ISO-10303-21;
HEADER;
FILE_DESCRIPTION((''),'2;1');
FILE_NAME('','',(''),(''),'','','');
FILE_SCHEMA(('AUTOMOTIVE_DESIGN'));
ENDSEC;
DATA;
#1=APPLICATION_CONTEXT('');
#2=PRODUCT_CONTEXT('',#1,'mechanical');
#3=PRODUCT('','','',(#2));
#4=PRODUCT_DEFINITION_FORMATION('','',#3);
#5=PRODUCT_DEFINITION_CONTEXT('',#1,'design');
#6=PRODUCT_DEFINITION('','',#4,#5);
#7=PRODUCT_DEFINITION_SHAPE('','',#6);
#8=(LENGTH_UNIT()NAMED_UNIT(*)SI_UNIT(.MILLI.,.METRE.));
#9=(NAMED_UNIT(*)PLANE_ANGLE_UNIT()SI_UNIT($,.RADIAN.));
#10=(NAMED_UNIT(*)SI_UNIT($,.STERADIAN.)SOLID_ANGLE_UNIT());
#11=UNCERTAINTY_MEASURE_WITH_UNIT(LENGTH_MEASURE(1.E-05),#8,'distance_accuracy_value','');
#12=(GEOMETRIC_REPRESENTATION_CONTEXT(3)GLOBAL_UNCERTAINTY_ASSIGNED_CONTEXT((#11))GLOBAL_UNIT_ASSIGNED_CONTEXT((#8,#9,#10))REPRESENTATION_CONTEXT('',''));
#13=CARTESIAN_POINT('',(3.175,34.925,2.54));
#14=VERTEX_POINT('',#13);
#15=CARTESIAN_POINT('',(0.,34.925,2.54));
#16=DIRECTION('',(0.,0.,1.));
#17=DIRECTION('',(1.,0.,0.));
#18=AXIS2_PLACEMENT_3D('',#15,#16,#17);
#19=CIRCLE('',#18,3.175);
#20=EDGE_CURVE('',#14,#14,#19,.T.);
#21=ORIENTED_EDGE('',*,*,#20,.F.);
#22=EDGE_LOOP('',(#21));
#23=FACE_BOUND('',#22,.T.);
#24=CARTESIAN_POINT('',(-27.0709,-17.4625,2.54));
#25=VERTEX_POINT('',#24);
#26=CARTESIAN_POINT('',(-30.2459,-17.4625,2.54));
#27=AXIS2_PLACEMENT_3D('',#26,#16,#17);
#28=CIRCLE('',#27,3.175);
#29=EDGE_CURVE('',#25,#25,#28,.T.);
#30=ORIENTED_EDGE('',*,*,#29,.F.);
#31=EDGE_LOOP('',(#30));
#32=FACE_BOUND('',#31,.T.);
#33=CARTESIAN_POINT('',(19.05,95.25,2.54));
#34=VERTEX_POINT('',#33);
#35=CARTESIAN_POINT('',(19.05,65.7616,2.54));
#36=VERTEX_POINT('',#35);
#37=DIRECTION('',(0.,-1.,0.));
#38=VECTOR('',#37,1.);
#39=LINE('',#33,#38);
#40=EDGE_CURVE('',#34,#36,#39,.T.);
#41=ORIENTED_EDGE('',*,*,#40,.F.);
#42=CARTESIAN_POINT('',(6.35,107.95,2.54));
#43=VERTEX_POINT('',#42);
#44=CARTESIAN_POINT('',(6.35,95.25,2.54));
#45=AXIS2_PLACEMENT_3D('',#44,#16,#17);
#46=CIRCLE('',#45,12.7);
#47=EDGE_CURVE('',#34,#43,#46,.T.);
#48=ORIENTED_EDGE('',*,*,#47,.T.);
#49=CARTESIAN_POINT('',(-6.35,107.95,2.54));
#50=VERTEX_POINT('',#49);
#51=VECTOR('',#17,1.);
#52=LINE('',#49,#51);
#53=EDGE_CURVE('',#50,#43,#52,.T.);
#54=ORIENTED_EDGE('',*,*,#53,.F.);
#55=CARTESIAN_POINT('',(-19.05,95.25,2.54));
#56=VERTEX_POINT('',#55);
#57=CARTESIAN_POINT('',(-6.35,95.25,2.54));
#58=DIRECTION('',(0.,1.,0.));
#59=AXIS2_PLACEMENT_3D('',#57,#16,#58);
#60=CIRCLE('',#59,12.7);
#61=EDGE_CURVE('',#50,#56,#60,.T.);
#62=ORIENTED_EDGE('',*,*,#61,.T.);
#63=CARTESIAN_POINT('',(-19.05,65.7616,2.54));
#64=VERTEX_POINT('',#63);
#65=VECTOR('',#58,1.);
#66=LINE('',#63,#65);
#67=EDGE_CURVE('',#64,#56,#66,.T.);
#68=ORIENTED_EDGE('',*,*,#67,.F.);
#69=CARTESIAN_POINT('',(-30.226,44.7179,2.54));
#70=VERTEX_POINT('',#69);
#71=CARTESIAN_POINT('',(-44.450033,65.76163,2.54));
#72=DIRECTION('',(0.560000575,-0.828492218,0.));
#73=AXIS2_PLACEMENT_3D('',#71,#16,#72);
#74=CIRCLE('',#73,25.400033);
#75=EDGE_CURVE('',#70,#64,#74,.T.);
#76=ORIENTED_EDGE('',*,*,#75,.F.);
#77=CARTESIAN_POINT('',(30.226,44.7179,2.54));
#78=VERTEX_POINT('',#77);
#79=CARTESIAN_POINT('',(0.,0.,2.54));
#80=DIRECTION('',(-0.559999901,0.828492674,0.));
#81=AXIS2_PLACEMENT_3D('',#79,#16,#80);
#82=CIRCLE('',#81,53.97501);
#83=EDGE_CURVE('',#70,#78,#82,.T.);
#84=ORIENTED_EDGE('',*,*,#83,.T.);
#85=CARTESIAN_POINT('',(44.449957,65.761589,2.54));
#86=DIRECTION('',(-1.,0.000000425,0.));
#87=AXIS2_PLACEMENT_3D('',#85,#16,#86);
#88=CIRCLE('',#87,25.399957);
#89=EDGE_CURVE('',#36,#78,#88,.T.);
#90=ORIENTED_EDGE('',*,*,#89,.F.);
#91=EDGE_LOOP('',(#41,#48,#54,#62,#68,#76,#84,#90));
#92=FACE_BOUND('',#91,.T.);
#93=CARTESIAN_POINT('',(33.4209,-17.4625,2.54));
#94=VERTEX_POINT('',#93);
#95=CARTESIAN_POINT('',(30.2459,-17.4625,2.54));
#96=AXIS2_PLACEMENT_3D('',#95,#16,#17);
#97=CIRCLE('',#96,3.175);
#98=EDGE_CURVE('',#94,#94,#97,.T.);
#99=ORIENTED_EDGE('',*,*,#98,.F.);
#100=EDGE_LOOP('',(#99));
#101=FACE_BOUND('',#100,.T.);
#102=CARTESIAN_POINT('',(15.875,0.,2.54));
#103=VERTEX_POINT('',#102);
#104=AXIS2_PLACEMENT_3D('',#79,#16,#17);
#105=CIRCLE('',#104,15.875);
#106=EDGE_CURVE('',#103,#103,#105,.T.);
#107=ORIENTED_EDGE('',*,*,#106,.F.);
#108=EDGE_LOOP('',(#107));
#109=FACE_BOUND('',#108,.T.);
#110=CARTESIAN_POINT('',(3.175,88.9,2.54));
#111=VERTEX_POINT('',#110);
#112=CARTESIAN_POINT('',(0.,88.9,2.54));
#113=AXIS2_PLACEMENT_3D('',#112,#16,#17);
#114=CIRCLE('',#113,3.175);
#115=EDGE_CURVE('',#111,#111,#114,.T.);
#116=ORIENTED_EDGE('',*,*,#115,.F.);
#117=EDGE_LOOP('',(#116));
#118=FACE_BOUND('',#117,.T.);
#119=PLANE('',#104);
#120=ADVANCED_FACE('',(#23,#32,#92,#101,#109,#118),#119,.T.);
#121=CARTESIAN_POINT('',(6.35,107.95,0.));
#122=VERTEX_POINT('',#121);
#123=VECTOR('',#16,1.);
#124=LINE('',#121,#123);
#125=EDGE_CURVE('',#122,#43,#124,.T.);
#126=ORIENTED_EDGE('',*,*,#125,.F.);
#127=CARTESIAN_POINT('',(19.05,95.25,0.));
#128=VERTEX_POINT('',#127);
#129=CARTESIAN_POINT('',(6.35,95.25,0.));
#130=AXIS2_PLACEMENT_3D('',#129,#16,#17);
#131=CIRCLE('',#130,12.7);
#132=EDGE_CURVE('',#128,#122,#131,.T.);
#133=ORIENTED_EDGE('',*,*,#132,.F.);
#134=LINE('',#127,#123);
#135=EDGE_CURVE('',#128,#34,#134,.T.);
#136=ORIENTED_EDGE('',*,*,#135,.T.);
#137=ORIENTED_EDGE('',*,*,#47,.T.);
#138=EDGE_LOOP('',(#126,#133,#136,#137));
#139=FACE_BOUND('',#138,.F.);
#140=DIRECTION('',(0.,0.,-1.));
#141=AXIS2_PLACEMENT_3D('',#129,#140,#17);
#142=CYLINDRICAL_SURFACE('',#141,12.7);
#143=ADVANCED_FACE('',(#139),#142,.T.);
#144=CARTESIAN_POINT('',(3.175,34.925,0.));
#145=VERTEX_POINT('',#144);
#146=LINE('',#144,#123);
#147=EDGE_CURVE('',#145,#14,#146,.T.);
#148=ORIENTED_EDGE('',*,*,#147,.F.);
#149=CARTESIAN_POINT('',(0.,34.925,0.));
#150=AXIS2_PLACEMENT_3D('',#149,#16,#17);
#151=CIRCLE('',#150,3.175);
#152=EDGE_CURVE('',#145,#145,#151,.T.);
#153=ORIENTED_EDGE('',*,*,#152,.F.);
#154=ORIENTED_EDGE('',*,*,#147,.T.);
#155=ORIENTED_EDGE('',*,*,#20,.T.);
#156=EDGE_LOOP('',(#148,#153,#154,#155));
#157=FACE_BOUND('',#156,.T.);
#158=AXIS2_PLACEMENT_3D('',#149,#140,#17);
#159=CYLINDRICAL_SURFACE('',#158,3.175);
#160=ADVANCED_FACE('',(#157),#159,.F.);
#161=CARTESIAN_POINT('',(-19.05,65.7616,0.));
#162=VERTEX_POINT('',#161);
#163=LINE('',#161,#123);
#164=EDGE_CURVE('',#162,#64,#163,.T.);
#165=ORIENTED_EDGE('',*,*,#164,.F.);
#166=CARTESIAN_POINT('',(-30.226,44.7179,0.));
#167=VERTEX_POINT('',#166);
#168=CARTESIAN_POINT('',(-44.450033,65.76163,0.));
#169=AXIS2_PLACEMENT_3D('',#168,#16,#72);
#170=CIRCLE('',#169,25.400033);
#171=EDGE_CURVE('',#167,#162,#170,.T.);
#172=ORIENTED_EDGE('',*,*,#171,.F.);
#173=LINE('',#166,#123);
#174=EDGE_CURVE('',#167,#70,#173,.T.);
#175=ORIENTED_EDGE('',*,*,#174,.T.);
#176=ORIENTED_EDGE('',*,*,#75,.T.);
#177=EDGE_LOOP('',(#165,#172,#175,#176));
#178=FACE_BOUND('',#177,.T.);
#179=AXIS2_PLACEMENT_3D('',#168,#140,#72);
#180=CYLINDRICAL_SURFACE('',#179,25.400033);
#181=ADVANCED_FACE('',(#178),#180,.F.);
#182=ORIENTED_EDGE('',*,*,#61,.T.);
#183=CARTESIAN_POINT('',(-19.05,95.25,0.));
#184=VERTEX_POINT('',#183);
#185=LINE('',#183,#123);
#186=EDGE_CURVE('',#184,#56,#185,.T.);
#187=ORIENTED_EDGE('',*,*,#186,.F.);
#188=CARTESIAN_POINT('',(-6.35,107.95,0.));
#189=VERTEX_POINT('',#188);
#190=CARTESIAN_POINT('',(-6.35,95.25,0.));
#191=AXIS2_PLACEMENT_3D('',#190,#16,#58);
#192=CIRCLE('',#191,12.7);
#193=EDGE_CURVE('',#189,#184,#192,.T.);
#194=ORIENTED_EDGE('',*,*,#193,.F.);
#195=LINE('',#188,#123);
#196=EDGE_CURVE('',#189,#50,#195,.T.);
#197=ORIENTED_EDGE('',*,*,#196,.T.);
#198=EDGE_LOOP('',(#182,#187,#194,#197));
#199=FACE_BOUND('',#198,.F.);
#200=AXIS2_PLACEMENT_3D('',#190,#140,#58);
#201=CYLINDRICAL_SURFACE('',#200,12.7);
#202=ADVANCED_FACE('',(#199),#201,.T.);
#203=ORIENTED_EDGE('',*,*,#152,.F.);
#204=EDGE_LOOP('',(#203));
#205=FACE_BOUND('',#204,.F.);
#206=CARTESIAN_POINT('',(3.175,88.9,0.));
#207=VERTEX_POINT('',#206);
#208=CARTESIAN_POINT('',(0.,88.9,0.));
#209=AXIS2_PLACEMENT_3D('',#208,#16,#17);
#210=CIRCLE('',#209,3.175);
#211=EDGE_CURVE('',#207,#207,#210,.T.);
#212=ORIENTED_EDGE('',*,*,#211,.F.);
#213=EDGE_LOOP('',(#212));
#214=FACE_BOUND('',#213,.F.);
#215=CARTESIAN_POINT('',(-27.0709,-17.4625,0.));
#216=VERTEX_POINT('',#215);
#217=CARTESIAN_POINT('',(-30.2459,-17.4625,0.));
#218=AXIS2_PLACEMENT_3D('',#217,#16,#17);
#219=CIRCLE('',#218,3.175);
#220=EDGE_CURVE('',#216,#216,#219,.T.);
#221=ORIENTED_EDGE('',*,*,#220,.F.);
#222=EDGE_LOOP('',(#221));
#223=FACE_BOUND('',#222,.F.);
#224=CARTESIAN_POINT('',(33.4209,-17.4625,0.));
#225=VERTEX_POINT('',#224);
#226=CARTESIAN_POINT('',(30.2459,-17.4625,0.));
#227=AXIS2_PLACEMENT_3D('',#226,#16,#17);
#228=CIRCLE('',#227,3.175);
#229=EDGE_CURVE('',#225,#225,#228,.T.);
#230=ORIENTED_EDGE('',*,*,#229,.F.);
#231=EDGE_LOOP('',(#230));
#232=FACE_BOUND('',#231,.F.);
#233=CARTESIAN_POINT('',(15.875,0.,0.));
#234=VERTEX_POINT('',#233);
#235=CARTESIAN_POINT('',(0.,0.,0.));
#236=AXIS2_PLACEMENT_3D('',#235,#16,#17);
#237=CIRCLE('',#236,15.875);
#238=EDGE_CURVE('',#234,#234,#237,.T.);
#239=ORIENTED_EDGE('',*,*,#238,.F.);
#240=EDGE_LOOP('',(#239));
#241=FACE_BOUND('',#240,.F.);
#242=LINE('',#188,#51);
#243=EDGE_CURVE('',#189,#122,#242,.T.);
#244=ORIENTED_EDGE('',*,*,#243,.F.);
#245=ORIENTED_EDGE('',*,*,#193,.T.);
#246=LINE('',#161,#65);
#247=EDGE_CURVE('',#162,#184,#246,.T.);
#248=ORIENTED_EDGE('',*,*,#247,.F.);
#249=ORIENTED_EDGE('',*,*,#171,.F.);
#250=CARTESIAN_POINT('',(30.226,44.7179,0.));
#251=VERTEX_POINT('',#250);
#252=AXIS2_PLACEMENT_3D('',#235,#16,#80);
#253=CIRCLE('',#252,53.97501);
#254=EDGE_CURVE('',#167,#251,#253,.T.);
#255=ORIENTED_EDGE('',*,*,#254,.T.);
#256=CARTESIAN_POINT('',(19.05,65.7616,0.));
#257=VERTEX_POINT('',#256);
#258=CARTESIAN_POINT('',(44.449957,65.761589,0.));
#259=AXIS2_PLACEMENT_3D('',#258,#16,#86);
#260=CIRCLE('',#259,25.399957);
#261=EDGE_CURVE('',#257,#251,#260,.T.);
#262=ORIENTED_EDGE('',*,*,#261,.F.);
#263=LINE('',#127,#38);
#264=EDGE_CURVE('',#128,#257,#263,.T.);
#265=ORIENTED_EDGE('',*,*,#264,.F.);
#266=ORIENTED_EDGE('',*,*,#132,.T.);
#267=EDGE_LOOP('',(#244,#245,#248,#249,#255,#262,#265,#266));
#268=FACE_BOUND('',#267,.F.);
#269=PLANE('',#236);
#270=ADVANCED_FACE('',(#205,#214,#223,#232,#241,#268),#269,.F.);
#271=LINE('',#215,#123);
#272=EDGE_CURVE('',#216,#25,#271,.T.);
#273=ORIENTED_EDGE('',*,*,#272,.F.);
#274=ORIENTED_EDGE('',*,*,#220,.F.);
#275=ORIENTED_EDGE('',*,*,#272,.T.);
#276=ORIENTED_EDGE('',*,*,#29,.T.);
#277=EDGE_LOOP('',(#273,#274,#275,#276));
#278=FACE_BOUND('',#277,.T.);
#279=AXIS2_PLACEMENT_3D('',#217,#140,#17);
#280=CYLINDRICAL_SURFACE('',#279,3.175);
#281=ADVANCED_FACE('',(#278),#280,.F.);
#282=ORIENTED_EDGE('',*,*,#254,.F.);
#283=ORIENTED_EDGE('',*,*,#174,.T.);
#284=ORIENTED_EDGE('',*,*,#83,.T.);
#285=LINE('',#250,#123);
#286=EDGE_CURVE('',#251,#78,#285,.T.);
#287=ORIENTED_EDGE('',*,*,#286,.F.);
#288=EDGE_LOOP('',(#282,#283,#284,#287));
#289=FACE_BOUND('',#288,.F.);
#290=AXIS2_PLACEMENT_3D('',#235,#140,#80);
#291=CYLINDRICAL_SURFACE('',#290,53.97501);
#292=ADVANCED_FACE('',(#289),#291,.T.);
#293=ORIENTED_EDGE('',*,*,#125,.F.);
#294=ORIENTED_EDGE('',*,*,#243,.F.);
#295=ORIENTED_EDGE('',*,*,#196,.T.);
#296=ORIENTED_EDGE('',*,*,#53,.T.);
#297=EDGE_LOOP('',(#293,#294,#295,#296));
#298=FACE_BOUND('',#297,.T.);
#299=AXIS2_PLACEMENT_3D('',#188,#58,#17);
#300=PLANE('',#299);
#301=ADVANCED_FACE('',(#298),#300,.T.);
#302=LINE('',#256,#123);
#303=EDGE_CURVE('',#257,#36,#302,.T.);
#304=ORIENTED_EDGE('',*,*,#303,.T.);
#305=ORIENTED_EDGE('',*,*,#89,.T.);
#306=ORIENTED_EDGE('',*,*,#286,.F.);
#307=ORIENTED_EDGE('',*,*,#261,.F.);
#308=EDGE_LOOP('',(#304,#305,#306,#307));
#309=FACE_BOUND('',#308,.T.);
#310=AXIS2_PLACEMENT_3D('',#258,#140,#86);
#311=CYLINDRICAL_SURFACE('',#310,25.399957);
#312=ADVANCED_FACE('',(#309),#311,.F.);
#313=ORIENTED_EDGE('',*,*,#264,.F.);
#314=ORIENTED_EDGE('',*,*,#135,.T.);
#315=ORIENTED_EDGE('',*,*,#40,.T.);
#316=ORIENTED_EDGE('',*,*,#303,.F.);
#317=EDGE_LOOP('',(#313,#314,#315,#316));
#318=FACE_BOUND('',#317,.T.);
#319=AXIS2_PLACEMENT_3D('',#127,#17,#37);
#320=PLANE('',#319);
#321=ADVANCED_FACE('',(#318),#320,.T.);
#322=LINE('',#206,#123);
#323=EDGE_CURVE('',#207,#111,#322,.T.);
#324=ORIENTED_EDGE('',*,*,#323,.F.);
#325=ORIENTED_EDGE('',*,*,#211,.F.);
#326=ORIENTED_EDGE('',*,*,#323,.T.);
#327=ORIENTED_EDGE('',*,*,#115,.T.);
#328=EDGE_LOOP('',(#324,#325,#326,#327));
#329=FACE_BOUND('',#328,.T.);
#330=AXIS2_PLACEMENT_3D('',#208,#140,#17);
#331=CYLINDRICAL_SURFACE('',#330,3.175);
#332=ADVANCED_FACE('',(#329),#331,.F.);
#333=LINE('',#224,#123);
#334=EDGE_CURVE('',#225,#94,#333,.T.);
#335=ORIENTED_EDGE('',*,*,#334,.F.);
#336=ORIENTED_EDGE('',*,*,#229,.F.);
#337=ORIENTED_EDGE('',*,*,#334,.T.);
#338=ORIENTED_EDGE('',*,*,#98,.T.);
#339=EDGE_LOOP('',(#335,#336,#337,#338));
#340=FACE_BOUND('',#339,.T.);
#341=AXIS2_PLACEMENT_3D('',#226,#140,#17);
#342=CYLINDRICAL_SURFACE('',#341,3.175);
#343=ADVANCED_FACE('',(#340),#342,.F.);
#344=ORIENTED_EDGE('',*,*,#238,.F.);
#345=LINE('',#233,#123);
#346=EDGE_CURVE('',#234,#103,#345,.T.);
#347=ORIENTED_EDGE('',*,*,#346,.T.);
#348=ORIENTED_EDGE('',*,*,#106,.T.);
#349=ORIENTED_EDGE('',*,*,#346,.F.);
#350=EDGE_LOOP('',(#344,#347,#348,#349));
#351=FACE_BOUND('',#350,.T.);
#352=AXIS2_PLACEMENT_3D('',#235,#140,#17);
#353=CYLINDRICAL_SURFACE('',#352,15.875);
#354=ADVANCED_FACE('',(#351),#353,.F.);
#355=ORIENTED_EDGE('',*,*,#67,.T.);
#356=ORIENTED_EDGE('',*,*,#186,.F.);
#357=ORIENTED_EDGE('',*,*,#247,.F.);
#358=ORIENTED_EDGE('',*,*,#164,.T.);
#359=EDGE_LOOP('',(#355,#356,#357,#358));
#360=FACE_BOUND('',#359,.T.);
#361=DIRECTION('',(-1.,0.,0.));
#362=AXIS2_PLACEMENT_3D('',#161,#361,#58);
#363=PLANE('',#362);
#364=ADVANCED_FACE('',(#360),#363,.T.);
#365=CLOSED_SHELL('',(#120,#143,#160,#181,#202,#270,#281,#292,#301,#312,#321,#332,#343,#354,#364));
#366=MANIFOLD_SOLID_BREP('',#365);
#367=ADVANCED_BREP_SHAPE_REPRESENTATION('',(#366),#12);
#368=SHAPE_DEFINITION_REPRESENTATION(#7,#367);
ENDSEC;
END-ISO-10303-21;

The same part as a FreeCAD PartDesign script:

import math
import FreeCAD as App
import Part
import Sketcher

V = App.Vector
Q = App.Units.Quantity

doc = App.newDocument("Part")
params = doc.addObject("Spreadsheet::Sheet", "Params")
for row, (alias, value) in enumerate([
    ("sketch1_radius", "1 in"),
    ("sketch1_radius2", "0.5 in"),
    ("sketch1_diameter", "0.25 in"),
    ("sketch1_diameter2", "1.25 in"),
    ("sketch1_width", "0.5 in"),
    ("pad1_length", "0.1 in"),
], start=1):
    params.set(f"A{row}", alias)
    params.set(f"B{row}", "=" + value)
    params.setAlias(f"B{row}", alias)

body = doc.addObject("PartDesign::Body", "Body")

# Sketch on XY plane
sketch1 = body.newObject("Sketcher::SketchObject", "Sketch")
sketch1.AttachmentSupport = (doc.getObject("XY_Plane"), [""])
sketch1.MapMode = "FlatFace"
sketch1.addGeometry([
    Part.ArcOfCircle(Part.Circle(V(-44.5, 65.8, 0), V(0, 0, 1), 25.4), math.radians(-56), math.radians(0)),  # 0
    Part.ArcOfCircle(Part.Circle(V(0, 0, 0), V(0, 0, 1), 54), math.radians(124), math.radians(416)),  # 1
    Part.ArcOfCircle(Part.Circle(V(44.5, 65.8, 0), V(0, 0, 1), 25.4), math.radians(180), math.radians(236)),  # 2
    Part.LineSegment(V(19.1, 65.8, 0), V(19.1, 95.2, 0)),  # 3
    Part.ArcOfCircle(Part.Circle(V(6.3, 95.2, 0), V(0, 0, 1), 12.7), math.radians(0), math.radians(90)),  # 4
    Part.LineSegment(V(6.3, 108, 0), V(-6.3, 108, 0)),  # 5
    Part.ArcOfCircle(Part.Circle(V(-6.3, 95.2, 0), V(0, 0, 1), 12.7), math.radians(90), math.radians(180)),  # 6
    Part.LineSegment(V(-19.1, 95.2, 0), V(-19.1, 65.8, 0)),  # 7
    Part.Circle(V(-30.2, -17.5, 0), V(0, 0, 1), 3.2),  # 8
    Part.Circle(V(0, 0, 0), V(0, 0, 1), 15.9),  # 9
    Part.Circle(V(30.2, -17.5, 0), V(0, 0, 1), 3.2),  # 10
    Part.Circle(V(0, 34.9, 0), V(0, 0, 1), 3.2),  # 11
    Part.Circle(V(0, 88.9, 0), V(0, 0, 1), 3.2),  # 12
], False)
sketch1.addConstraint([
    Sketcher.Constraint("Tangent", 0, 1, 1, 1),
    Sketcher.Constraint("Tangent", 1, 2, 2, 2),
    Sketcher.Constraint("Tangent", 2, 1, 3, 1),
    Sketcher.Constraint("Tangent", 3, 2, 4, 1),
    Sketcher.Constraint("Tangent", 4, 2, 5, 1),
    Sketcher.Constraint("Tangent", 5, 2, 6, 1),
    Sketcher.Constraint("Tangent", 6, 2, 7, 1),
    Sketcher.Constraint("Tangent", 7, 2, 0, 2),
    Sketcher.Constraint("Vertical", 3),
    Sketcher.Constraint("Horizontal", 5),
    Sketcher.Constraint("Vertical", 7),
    Sketcher.Constraint("Coincident", 1, 3, -1, 1),
    Sketcher.Constraint("Coincident", 9, 3, -1, 1),
    Sketcher.Constraint("Equal", 0, 2),
    Sketcher.Constraint("Equal", 4, 6),
    Sketcher.Constraint("Equal", 8, 10),
    Sketcher.Constraint("Equal", 10, 11),
    Sketcher.Constraint("Equal", 11, 12),
    Sketcher.Constraint("Symmetric", 8, 3, 10, 3, -2),
    Sketcher.Constraint("PointOnObject", 11, 3, -2),
    Sketcher.Constraint("PointOnObject", 12, 3, -2),
    Sketcher.Constraint("Horizontal", 0, 3, 2, 3),
    Sketcher.Constraint("Radius", 0, Q("1 in")),
    Sketcher.Constraint("Radius", 4, Q("0.5 in")),
    Sketcher.Constraint("Diameter", 8, Q("0.25 in")),
    Sketcher.Constraint("Diameter", 9, Q("1.25 in")),
    Sketcher.Constraint("DistanceX", 5, 2, 5, 1, Q("0.5 in")),
    Sketcher.Constraint("Radius", 1, Q("2.125 in")),
    Sketcher.Constraint("DistanceY", -1, 1, 12, 3, Q("3.5 in")),
    Sketcher.Constraint("DistanceY", -1, 1, 4, 2, Q("4.25 in")),
    Sketcher.Constraint("DistanceY", 8, 3, -1, 1, Q("0.6875 in")),
    Sketcher.Constraint("DistanceY", -1, 1, 11, 3, Q("1.375 in")),
    Sketcher.Constraint("DistanceX", 8, 3, -1, 1, 30.246),
])
sketch1.setExpression("Constraints[22]", "Params.sketch1_radius")
sketch1.setExpression("Constraints[23]", "Params.sketch1_radius2")
sketch1.setExpression("Constraints[24]", "Params.sketch1_diameter")
sketch1.setExpression("Constraints[25]", "Params.sketch1_diameter2")
sketch1.setExpression("Constraints[26]", "Params.sketch1_width")
pad1 = body.newObject("PartDesign::Pad", "Pad")
pad1.Profile = sketch1
pad1.setExpression("Length", "Params.pad1_length")

doc.recompute()
